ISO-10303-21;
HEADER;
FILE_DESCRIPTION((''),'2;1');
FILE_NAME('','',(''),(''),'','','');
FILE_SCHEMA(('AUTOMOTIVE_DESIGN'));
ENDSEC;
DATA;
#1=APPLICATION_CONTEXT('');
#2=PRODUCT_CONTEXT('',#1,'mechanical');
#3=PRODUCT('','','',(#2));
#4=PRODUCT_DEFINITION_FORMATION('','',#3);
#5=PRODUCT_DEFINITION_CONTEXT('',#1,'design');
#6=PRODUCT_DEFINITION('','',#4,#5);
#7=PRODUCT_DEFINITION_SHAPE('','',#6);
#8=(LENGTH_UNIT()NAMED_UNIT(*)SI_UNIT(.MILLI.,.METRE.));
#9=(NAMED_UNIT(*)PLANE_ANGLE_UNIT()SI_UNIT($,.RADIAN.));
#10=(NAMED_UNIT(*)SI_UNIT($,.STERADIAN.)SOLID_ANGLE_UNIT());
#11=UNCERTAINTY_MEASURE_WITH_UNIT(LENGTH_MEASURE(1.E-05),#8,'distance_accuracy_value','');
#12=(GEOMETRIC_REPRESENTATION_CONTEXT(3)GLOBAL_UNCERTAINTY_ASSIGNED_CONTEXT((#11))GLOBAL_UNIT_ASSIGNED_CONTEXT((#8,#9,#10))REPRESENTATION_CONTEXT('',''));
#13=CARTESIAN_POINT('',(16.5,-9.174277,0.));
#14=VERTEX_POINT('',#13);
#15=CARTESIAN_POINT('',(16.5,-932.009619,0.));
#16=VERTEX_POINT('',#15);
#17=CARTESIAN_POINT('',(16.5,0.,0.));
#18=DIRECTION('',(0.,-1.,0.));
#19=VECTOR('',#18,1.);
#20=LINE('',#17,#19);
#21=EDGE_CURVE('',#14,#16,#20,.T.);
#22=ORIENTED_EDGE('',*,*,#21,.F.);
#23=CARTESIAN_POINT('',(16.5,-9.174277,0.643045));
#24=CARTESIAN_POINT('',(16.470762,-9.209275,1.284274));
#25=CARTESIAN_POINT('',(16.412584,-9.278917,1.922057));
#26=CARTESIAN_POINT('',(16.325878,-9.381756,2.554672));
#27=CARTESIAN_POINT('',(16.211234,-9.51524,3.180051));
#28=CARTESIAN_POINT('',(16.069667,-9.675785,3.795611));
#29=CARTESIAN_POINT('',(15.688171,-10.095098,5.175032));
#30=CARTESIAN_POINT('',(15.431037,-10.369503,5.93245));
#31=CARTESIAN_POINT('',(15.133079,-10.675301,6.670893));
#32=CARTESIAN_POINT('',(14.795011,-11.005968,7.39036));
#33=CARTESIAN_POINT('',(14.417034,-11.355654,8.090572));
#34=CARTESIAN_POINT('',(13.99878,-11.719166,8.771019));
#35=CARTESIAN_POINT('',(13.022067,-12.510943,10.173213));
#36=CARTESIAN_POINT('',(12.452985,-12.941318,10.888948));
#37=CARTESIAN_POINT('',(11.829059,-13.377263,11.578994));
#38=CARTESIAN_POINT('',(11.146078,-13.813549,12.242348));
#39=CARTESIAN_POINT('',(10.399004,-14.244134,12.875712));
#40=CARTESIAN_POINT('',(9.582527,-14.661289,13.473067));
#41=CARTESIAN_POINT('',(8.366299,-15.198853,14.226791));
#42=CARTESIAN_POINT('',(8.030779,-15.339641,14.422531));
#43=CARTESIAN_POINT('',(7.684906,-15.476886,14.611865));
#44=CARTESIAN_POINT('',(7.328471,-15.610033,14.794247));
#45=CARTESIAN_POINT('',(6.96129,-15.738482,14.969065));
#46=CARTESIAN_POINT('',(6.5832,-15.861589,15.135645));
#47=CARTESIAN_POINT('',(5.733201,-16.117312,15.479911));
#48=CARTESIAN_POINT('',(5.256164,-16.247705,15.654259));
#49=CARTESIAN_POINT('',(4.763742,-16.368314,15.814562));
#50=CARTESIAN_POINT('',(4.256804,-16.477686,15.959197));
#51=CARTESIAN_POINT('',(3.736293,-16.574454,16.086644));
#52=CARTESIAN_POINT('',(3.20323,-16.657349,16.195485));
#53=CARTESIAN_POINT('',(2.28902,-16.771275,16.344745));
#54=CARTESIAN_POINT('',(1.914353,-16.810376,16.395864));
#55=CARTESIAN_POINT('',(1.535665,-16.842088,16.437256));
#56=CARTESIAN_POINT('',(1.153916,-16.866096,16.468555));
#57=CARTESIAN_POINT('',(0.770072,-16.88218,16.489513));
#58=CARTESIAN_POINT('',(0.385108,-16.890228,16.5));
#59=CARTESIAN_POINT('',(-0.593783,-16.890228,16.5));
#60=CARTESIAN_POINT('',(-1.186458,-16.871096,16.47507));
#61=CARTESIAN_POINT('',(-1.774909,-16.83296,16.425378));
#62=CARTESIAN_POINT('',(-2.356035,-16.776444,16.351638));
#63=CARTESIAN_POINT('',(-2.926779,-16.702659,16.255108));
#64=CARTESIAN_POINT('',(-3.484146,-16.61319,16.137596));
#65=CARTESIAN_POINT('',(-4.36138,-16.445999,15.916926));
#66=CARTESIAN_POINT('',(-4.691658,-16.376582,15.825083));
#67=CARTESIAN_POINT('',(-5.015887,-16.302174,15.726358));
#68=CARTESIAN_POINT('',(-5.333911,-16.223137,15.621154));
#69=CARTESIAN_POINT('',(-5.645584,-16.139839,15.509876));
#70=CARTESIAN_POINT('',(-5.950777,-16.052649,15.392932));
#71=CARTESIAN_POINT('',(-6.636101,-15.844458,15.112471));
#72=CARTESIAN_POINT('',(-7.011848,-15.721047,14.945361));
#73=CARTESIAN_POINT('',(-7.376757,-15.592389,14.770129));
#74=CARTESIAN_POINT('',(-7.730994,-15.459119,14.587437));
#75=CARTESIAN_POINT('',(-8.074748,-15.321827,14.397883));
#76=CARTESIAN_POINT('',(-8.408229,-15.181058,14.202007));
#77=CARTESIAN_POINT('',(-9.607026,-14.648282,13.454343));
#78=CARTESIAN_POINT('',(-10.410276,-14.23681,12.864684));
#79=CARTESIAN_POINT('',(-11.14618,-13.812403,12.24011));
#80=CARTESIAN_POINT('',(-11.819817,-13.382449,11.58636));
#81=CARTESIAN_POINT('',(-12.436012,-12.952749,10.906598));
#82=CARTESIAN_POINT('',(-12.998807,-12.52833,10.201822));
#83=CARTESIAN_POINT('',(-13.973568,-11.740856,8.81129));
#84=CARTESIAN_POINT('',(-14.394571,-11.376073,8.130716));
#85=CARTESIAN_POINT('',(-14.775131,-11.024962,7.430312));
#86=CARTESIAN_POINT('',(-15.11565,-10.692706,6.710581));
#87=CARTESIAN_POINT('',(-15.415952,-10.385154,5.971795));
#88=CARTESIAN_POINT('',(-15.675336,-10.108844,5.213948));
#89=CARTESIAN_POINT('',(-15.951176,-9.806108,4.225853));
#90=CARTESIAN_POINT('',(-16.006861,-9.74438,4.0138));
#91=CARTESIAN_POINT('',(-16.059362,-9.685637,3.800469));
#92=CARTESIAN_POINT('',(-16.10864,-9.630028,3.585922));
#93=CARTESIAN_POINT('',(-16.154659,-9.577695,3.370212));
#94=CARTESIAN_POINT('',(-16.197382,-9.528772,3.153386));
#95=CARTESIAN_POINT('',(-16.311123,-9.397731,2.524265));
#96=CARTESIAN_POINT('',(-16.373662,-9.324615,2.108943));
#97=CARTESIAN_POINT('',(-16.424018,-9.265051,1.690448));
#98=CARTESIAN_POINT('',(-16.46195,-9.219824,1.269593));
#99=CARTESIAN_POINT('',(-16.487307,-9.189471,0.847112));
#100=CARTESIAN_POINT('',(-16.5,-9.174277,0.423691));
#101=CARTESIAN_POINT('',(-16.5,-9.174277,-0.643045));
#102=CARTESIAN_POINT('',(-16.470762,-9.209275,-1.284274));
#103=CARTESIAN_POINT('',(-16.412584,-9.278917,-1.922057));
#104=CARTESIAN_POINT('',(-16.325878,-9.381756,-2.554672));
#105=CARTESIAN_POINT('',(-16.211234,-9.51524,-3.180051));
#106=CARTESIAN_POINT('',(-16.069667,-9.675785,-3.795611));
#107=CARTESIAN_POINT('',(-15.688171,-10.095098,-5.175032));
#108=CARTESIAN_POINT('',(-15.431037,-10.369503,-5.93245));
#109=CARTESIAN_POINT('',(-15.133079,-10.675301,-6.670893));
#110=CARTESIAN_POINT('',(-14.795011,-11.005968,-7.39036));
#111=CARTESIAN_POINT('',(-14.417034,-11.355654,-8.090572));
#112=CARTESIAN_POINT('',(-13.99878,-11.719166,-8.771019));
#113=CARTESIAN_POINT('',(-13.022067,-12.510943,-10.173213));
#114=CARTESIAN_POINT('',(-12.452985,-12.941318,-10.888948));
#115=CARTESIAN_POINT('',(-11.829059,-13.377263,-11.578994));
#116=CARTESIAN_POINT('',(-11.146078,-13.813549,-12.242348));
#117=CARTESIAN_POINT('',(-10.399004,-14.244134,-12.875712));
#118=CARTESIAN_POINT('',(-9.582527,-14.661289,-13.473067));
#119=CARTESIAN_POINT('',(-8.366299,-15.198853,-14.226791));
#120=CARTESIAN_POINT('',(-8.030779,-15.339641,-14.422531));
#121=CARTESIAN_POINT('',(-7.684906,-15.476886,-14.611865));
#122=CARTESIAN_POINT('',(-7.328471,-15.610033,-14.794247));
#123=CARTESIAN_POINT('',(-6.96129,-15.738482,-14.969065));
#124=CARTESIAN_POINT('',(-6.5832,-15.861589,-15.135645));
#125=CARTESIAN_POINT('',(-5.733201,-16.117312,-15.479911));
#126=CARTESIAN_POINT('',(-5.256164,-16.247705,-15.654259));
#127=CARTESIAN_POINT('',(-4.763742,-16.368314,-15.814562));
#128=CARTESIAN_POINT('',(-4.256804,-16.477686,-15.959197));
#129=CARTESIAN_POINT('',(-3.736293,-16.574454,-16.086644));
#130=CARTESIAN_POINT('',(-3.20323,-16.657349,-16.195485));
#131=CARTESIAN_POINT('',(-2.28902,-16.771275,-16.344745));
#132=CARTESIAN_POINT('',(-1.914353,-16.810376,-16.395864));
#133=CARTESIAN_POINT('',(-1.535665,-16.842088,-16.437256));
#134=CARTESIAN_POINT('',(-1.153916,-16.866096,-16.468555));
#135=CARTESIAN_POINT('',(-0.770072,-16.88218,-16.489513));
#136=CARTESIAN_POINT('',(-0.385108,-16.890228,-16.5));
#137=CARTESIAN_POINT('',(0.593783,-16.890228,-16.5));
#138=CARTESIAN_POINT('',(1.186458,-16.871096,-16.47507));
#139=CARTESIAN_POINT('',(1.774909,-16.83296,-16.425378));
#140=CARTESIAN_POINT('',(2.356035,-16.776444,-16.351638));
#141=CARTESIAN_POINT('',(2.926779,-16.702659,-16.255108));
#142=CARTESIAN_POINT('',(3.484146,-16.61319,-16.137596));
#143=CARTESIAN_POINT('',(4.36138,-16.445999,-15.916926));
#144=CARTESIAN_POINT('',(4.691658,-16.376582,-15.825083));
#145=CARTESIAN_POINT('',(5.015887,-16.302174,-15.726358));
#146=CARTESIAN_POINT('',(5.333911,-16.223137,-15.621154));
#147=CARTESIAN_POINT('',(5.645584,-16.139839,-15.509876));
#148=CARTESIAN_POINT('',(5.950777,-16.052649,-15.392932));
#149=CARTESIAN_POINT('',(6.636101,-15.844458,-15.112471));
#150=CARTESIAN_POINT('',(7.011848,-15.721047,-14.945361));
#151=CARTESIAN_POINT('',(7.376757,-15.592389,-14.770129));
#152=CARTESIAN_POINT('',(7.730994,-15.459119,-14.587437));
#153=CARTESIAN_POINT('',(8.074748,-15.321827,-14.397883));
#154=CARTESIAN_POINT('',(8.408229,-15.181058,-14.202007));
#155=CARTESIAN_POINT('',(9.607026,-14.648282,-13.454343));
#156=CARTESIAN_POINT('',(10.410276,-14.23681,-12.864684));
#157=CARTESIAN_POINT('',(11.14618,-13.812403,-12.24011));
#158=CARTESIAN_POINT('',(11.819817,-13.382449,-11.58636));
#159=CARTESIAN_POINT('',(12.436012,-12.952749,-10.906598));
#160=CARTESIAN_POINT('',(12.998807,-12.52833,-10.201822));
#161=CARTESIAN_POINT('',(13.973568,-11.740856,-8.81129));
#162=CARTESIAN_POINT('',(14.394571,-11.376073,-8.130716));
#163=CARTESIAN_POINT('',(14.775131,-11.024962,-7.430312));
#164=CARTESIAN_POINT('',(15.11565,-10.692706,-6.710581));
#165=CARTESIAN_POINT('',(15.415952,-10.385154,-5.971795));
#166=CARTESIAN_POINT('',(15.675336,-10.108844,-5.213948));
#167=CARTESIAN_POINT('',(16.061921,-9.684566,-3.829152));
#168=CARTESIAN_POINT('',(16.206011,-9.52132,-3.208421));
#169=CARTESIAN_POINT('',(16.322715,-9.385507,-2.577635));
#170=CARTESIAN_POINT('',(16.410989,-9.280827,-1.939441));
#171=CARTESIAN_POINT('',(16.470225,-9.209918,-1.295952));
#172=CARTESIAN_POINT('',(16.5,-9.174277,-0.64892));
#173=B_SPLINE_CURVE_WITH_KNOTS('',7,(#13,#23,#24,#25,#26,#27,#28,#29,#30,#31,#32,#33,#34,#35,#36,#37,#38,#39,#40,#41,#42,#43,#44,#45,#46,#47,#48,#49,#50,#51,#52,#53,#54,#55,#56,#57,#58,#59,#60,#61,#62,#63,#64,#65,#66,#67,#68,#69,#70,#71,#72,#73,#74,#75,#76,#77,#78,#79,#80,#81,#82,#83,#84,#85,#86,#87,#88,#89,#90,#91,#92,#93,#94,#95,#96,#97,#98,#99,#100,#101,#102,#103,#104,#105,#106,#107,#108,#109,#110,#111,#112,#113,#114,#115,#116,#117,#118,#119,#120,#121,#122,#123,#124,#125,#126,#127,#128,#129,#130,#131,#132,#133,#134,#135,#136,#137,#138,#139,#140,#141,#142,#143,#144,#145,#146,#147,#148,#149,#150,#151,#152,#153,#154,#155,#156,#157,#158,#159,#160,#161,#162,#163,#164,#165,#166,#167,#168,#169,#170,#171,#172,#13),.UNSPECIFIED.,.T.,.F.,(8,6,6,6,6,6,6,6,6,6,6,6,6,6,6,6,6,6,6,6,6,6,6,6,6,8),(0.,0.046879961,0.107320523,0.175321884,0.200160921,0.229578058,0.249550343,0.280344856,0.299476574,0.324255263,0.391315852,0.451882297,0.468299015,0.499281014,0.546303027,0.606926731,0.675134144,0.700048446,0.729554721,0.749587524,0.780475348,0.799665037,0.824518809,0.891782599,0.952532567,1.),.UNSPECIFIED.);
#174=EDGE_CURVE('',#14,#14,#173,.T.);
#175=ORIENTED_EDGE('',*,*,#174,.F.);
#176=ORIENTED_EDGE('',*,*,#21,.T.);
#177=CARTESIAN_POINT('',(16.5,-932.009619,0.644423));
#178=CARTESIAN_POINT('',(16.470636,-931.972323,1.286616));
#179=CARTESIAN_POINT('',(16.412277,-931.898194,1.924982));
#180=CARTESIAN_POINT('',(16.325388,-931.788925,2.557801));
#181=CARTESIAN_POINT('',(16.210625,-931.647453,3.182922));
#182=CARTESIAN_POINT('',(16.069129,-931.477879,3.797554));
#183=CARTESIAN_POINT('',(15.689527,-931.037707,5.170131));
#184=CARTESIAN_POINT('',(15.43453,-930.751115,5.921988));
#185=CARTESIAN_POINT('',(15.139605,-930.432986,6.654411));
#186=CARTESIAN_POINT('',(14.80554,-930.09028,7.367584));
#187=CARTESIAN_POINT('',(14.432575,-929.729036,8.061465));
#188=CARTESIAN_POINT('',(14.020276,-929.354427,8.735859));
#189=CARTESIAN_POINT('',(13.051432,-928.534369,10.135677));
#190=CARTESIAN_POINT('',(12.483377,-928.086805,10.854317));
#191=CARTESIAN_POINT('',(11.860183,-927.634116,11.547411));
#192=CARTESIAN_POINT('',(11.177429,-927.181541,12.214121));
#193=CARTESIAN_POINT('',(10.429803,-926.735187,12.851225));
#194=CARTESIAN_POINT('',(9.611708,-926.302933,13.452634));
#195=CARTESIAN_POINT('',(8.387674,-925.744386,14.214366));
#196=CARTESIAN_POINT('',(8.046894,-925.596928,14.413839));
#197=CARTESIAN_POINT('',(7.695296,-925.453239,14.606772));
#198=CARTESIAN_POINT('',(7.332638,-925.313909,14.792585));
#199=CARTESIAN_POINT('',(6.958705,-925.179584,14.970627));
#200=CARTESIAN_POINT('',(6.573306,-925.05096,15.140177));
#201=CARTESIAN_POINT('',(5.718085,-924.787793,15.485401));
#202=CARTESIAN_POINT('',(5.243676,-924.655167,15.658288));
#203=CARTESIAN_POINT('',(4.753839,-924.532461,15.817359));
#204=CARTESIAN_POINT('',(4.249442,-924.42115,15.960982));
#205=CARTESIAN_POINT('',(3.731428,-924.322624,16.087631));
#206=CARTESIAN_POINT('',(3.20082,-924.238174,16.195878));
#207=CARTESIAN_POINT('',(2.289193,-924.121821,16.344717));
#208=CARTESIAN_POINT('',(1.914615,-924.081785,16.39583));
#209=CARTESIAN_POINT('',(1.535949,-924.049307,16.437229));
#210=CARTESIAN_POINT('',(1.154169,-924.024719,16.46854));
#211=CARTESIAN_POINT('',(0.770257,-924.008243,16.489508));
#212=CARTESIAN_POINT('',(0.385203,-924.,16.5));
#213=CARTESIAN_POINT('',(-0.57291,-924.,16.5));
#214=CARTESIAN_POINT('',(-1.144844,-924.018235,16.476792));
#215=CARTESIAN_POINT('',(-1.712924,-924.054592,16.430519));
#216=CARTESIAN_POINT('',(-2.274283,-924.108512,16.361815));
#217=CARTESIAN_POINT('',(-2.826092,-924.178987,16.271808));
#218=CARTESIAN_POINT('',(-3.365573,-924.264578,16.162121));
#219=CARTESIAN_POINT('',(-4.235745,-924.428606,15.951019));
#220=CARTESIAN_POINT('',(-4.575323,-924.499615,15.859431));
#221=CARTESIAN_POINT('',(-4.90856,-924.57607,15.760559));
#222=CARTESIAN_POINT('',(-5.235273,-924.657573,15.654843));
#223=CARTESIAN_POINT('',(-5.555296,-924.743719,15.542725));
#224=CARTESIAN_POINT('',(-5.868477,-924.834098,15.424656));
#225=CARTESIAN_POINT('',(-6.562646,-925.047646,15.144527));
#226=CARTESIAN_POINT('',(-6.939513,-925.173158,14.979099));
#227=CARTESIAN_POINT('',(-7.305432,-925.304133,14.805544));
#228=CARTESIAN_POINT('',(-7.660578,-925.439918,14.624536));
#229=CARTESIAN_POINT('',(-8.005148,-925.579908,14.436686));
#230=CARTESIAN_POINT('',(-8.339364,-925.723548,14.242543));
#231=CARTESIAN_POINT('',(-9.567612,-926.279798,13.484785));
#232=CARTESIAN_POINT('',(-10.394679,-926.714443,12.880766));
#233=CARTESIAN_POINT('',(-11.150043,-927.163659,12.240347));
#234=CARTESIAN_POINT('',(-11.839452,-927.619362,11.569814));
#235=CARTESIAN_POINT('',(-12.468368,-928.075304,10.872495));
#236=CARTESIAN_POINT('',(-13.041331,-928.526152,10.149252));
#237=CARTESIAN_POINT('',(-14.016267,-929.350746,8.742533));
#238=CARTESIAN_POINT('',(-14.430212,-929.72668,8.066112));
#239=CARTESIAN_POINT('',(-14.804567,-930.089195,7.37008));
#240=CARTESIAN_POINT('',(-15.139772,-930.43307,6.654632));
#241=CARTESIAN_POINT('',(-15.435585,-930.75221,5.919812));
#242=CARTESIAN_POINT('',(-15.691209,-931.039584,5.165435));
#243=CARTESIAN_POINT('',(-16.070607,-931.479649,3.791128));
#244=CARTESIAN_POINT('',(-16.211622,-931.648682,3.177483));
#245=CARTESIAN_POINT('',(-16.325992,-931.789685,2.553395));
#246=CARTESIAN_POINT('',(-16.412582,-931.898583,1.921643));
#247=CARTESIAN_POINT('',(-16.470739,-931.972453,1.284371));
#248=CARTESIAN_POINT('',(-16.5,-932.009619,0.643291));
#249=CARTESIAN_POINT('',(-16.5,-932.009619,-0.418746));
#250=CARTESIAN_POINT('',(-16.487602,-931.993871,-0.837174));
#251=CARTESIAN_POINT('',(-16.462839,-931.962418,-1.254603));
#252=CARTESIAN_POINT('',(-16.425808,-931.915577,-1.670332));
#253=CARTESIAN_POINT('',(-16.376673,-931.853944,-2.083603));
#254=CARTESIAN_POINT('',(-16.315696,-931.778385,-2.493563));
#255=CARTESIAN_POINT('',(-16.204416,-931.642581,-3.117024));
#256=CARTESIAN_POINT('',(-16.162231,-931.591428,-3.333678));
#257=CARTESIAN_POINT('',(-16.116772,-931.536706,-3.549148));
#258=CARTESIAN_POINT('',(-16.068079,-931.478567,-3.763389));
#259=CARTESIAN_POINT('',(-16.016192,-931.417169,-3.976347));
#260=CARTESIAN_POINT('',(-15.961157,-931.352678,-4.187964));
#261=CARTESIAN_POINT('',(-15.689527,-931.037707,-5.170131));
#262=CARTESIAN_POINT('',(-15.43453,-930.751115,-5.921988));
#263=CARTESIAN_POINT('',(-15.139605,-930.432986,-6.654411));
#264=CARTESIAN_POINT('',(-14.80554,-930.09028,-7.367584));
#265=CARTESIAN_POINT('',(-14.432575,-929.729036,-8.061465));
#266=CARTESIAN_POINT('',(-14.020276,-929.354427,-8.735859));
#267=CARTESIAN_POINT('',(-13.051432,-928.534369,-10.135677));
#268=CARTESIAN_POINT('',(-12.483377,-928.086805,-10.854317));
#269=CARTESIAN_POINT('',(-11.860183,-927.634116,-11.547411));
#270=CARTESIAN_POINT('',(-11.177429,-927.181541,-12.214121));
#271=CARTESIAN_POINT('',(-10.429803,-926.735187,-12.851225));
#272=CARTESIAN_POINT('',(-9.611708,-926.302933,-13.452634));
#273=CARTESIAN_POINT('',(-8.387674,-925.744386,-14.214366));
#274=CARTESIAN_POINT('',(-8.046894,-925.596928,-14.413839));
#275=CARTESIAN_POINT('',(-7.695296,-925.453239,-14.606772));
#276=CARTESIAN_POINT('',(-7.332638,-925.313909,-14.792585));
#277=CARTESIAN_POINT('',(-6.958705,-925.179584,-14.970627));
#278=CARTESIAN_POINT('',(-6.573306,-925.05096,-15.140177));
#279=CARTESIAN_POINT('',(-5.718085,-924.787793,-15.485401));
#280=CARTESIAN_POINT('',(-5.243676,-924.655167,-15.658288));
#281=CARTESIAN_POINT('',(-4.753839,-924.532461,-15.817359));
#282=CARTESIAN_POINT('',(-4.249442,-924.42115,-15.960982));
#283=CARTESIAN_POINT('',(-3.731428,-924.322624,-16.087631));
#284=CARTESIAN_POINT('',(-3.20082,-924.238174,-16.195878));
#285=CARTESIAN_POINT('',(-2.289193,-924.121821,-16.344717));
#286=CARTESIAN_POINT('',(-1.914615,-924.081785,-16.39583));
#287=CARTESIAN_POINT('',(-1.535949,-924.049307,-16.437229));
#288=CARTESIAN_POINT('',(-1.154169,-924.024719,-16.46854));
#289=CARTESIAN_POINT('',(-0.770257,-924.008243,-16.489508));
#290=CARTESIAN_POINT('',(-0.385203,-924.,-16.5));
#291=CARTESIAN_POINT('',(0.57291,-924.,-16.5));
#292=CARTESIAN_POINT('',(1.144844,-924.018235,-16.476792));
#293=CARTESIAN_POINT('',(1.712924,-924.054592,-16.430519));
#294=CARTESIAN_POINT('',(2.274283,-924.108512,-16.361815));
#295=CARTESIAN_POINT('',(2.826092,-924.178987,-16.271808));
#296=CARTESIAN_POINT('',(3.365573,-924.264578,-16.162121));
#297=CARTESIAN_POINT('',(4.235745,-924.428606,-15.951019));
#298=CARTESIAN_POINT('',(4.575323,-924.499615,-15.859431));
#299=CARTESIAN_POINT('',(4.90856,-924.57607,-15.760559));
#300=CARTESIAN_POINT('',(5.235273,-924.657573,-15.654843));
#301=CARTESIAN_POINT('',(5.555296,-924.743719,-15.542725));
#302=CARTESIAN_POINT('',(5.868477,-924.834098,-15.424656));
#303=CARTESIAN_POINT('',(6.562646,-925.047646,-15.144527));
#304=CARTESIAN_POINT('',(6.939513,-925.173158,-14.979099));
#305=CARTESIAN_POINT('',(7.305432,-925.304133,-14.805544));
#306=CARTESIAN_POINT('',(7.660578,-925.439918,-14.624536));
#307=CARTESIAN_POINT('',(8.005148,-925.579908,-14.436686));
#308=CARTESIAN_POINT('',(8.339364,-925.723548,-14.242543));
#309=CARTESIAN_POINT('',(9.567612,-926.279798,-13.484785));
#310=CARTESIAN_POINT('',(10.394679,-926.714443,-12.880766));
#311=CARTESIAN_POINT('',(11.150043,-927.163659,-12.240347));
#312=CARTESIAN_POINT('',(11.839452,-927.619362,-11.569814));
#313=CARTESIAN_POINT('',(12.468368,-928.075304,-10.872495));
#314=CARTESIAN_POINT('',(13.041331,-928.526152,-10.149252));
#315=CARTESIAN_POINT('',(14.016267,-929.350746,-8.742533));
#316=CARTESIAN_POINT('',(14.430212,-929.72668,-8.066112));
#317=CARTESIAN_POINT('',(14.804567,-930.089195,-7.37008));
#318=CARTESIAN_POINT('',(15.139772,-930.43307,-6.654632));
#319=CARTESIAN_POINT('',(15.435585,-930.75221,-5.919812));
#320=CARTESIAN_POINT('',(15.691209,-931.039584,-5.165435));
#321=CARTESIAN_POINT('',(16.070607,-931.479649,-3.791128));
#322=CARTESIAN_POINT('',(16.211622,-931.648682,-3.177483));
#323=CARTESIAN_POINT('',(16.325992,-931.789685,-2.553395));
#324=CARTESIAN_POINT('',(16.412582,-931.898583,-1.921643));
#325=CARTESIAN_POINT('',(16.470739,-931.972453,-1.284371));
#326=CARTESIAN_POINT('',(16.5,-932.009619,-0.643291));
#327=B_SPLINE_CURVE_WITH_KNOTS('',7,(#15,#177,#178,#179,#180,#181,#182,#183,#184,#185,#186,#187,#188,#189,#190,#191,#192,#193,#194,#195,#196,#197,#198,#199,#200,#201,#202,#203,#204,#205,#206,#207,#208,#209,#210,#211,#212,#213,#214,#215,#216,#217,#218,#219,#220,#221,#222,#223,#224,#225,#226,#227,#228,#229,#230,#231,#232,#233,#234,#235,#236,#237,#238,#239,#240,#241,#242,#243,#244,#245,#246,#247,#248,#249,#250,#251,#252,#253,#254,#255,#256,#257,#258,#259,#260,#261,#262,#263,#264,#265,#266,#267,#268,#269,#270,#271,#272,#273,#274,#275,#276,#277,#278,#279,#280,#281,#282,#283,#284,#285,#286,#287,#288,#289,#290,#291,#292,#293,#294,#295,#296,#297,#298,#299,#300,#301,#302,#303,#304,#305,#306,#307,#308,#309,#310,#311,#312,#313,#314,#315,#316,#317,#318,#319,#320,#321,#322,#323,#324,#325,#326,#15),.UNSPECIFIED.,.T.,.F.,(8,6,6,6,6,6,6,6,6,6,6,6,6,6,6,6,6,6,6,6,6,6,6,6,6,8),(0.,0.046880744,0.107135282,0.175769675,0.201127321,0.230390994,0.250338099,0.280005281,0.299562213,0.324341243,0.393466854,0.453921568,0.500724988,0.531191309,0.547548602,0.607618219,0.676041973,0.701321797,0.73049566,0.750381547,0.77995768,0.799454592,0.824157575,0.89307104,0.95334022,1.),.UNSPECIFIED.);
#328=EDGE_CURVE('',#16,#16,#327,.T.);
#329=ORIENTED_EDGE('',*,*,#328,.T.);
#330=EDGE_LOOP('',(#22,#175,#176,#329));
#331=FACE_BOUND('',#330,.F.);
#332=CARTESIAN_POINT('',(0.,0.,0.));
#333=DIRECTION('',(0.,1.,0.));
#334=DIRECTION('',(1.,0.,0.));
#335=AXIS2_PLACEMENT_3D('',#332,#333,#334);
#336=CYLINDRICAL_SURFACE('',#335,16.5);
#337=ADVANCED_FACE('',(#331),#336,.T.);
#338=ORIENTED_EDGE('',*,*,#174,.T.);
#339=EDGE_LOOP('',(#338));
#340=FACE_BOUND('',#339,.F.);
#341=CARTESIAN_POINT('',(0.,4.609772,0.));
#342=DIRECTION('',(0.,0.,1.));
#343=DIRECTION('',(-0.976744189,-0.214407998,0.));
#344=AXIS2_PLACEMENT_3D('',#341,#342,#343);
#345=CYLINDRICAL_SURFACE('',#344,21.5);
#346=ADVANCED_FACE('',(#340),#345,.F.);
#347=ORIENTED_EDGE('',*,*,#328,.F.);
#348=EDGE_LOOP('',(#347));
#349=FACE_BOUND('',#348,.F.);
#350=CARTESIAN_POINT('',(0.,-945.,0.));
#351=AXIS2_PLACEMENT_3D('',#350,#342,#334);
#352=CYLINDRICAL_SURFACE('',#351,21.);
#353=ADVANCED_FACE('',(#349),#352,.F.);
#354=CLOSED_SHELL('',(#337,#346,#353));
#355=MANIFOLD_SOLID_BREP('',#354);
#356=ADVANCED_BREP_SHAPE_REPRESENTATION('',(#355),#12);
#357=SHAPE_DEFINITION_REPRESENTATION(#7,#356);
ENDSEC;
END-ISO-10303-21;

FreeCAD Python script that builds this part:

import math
import FreeCAD as App
import Part
import Sketcher
from FreeCAD import Vector

doc = App.newDocument("Part")
body = doc.addObject("PartDesign::Body", "Body")

# Sketch on XZ plane
sketch1 = doc.addObject("Sketcher::SketchObject", "Sketch")
body.addObject(sketch1)
sketch1.AttachmentSupport = (doc.XZ_Plane, [""])
sketch1.MapMode = "FlatFace"
sketch1.addGeometry(Part.Circle(Vector(0, 0, 0), Vector(0, 0, 1), 16), False)
sketch1.addConstraint([
    Sketcher.Constraint("Coincident", 0, 3, -1, 1),
    Sketcher.Constraint("Diameter", 0, 33.0),
])
pad1 = doc.addObject("PartDesign::Pad", "Pad")
body.addObject(pad1)
pad1.Profile = sketch1
pad1.Length = 945

# Sketch on XY plane
sketch2 = doc.addObject("Sketcher::SketchObject", "Sketch001")
body.addObject(sketch2)
sketch2.AttachmentSupport = (doc.XY_Plane, [""])
sketch2.MapMode = "FlatFace"
sketch2.addGeometry([
    Part.ArcOfCircle(Part.Circle(Vector(0, 5, 0), Vector(0, 0, 1), 21), math.radians(-168), math.radians(-12)),
    Part.LineSegment(Vector(21, 0, 0), Vector(-21, 0, 0)),
], False)
sketch2.addConstraint([
    Sketcher.Constraint("Coincident", 0, 1, 1, 2),
    Sketcher.Constraint("Coincident", 1, 1, 0, 2),
    Sketcher.Constraint("Horizontal", 1),
    Sketcher.Constraint("Symmetric", 0, 1, 1, 1, -1, 1),
    Sketcher.Constraint("Radius", 0, 21.5),
    Sketcher.Constraint("DistanceX", 1, 2, 1, 1, 42.0),
])
pocket1 = doc.addObject("PartDesign::Pocket", "Pocket")
body.addObject(pocket1)
pocket1.Profile = sketch2
pocket1.Length = 1000
pocket1.Midplane = True

# Sketch on XY plane
sketch3 = doc.addObject("Sketcher::SketchObject", "Sketch002")
body.addObject(sketch3)
sketch3.AttachmentSupport = (doc.XY_Plane, [""])
sketch3.MapMode = "FlatFace"
sketch3.addGeometry([
    Part.LineSegment(Vector(-21, -945, 0), Vector(21, -945, 0)),
    Part.ArcOfCircle(Part.Circle(Vector(0, -945, 0), Vector(0, 0, 1), 21), math.radians(0), math.radians(180)),
], False)
sketch3.addConstraint([
    Sketcher.Constraint("Coincident", 0, 1, 1, 2),
    Sketcher.Constraint("Coincident", 1, 1, 0, 2),
    Sketcher.Constraint("Horizontal", 0),
    Sketcher.Constraint("PointOnObject", 1, 3, -2),
    Sketcher.Constraint("Horizontal", 1, 3, 0, 1),
    Sketcher.Constraint("Radius", 1, 21.0),
    Sketcher.Constraint("DistanceY", 1, 3, -1, 1, 945.0),
])
pocket2 = doc.addObject("PartDesign::Pocket", "Pocket001")
body.addObject(pocket2)
pocket2.Profile = sketch3
pocket2.Length = 100
pocket2.Midplane = True

doc.recompute()
